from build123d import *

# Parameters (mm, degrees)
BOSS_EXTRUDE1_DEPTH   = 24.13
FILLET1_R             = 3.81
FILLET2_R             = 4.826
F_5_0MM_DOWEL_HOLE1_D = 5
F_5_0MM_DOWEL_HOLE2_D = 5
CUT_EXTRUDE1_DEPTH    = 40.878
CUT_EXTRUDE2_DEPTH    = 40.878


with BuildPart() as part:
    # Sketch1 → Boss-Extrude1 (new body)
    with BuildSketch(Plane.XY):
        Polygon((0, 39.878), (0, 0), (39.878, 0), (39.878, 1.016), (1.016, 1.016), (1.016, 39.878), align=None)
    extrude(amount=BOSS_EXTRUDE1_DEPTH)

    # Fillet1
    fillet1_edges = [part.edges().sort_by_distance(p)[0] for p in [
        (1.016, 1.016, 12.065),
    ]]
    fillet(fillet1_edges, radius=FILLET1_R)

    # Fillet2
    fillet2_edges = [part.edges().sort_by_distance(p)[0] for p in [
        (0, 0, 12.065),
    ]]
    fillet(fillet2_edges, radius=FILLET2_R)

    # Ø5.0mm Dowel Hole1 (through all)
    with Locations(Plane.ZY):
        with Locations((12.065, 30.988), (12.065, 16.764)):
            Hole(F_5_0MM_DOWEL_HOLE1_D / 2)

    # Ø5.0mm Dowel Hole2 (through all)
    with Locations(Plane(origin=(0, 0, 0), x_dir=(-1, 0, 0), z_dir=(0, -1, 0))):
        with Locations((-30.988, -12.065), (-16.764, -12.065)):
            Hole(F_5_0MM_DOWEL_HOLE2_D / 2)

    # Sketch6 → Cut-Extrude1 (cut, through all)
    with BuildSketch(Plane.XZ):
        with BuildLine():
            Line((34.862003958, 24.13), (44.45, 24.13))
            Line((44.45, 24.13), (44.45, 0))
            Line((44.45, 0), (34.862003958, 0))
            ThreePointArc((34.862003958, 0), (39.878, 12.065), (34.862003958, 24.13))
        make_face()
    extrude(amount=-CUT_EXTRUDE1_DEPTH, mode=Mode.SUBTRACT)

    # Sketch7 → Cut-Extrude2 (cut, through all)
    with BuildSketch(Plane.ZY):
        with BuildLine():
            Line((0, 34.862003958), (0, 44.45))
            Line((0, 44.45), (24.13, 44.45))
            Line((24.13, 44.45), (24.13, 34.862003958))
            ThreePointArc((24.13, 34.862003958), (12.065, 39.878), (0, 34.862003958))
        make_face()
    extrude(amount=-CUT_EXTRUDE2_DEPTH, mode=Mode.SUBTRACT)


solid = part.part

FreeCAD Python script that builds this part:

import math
import FreeCAD as App
import Part
import Sketcher
from FreeCAD import Vector
Q = App.Units.Quantity


def edges_at(feature, points):
    """Names of the edges that pass closest to the given points."""
    edges = feature.Shape.Edges
    near = lambda p: min(range(len(edges)), key=lambda i: edges[i].distToShape(Part.Vertex(*p))[0])
    return sorted({f"Edge{near(p) + 1}" for p in points})


def add_polygon(sketch, points):
    """Adds a closed chain of lines whose ends are joined by coincident constraints."""
    first, n = sketch.GeometryCount, len(points)
    for a, b in zip(points, points[1:] + points[:1]):
        sketch.addGeometry(Part.LineSegment(App.Vector(*a, 0), App.Vector(*b, 0)), False)
    for i in range(n):
        sketch.addConstraint(Sketcher.Constraint("Coincident", first + i, 2, first + (i + 1) % n, 1))

doc = App.newDocument("Part")
body = doc.addObject("PartDesign::Body", "Body")

sketch1 = doc.addObject("Sketcher::SketchObject", "Sketch")
body.addObject(sketch1)
sketch1.AttachmentSupport = (doc.XY_Plane, [""])
sketch1.MapMode = "FlatFace"
add_polygon(sketch1, [(0, 39.9), (0, 0), (39.9, 0), (39.9, 1), (1, 1), (1, 39.9)])
sketch1.addConstraint([
    Sketcher.Constraint("Vertical", 0),
    Sketcher.Constraint("Horizontal", 1),
    Sketcher.Constraint("Vertical", 2),
    Sketcher.Constraint("Horizontal", 3),
    Sketcher.Constraint("Vertical", 4),
    Sketcher.Constraint("Horizontal", 5),
    Sketcher.Constraint("Coincident", 0, 2, -1, 1),
    Sketcher.Constraint("Equal", 1, 0),
    Sketcher.Constraint("Equal", 5, 2),
    Sketcher.Constraint("DistanceX", 1, 1, 1, 2, Q("1.57 in")),
    Sketcher.Constraint("DistanceX", 3, 2, 3, 1, Q("1.53 in")),
])
pad1 = doc.addObject("PartDesign::Pad", "Pad")
body.addObject(pad1)
pad1.Profile = sketch1
pad1.Length = Q("0.95 in")
doc.recompute()

fillet = doc.addObject("PartDesign::Fillet", "Fillet")
body.addObject(fillet)
fillet.Base = (pad1, edges_at(pad1, [(1.016, 1.016, 12.065)]))
fillet.Radius = Q("0.15 in")
doc.recompute()

fillet2 = doc.addObject("PartDesign::Fillet", "Fillet001")
body.addObject(fillet2)
fillet2.Base = (fillet, edges_at(fillet, [(0, 0, 12.065)]))
fillet2.Radius = Q("0.19 in")

sketch2 = doc.addObject("Sketcher::SketchObject", "Sketch001")
body.addObject(sketch2)
sketch2.AttachmentSupport = (doc.YZ_Plane, [""])
sketch2.MapMode = "FlatFace"
sketch2.addGeometry([
    Part.Circle(Vector(31, 12.1, 0), Vector(0, 0, 1), 2.5),
    Part.Circle(Vector(16.8, 12.1, 0), Vector(0, 0, 1), 2.5),
], False)
sketch2.addConstraint([
    Sketcher.Constraint("Equal", 0, 1),
    Sketcher.Constraint("Horizontal", 0, 3, 1, 3),
    Sketcher.Constraint("Diameter", 0, 5.0),
    Sketcher.Constraint("DistanceX", -1, 1, 0, 3, Q("1.22 in")),
    Sketcher.Constraint("DistanceX", -1, 1, 1, 3, Q("0.66 in")),
    Sketcher.Constraint("DistanceY", -1, 1, 0, 3, Q("0.475 in")),
])
doc.recompute()
hole = doc.addObject("PartDesign::Hole", "Hole")
body.addObject(hole)
hole.Profile = sketch2
hole.ThreadType = "None"
hole.Diameter = 5
hole.DepthType = "ThroughAll"
hole.Reversed = True

sketch3 = doc.addObject("Sketcher::SketchObject", "Sketch002")
body.addObject(sketch3)
sketch3.AttachmentSupport = (doc.XZ_Plane, [""])
sketch3.MapMode = "FlatFace"
sketch3.addGeometry([
    Part.Circle(Vector(31, 12.1, 0), Vector(0, 0, 1), 2.5),
    Part.Circle(Vector(16.8, 12.1, 0), Vector(0, 0, 1), 2.5),
], False)
sketch3.addConstraint([
    Sketcher.Constraint("Equal", 0, 1),
    Sketcher.Constraint("Horizontal", 0, 3, 1, 3),
    Sketcher.Constraint("Diameter", 0, 5.0),
    Sketcher.Constraint("DistanceX", -1, 1, 0, 3, Q("1.22 in")),
    Sketcher.Constraint("DistanceX", -1, 1, 1, 3, Q("0.66 in")),
    Sketcher.Constraint("DistanceY", -1, 1, 0, 3, Q("0.475 in")),
])
doc.recompute()
hole2 = doc.addObject("PartDesign::Hole", "Hole001")
body.addObject(hole2)
hole2.Profile = sketch3
hole2.ThreadType = "None"
hole2.Diameter = 5
hole2.DepthType = "ThroughAll"

sketch4 = doc.addObject("Sketcher::SketchObject", "Sketch003")
body.addObject(sketch4)
sketch4.AttachmentSupport = (doc.XZ_Plane, [""])
sketch4.MapMode = "FlatFace"
sketch4.addGeometry([
    Part.LineSegment(Vector(44, 24, 0), Vector(35, 24, 0)),
    Part.ArcOfCircle(Part.Circle(Vector(23, 12, 0), Vector(0, 0, 1), 17), math.radians(-45), math.radians(45)),
    Part.LineSegment(Vector(35, 0, 0), Vector(44, 0, 0)),
    Part.LineSegment(Vector(44, 0, 0), Vector(44, 24, 0)),
], False)
sketch4.addConstraint([
    Sketcher.Constraint("Coincident", 0, 2, 1, 2),
    Sketcher.Constraint("Coincident", 1, 1, 2, 1),
    Sketcher.Constraint("Coincident", 2, 2, 3, 1),
    Sketcher.Constraint("Coincident", 3, 2, 0, 1),
    Sketcher.Constraint("Horizontal", 0),
    Sketcher.Constraint("Horizontal", 2),
    Sketcher.Constraint("Vertical", 3),
    Sketcher.Constraint("PointOnObject", 1, 1, -1),
    Sketcher.Constraint("Vertical", 0, 2, 1, 1),
    Sketcher.Constraint("Radius", 1, Q("0.67 in")),
    Sketcher.Constraint("DistanceY", 3, 1, 3, 2, Q("0.95 in")),
    Sketcher.Constraint("DistanceX", -1, 1, 1, 3, Q("0.9 in")),
    Sketcher.Constraint("DistanceX", -1, 1, 2, 2, Q("1.75 in")),
])
pocket1 = doc.addObject("PartDesign::Pocket", "Pocket")
body.addObject(pocket1)
pocket1.Profile = sketch4
pocket1.Type = "ThroughAll"

sketch5 = doc.addObject("Sketcher::SketchObject", "Sketch004")
body.addObject(sketch5)
sketch5.AttachmentSupport = (doc.YZ_Plane, [""])
sketch5.MapMode = "FlatFace"
sketch5.addGeometry([
    Part.LineSegment(Vector(44, 0, 0), Vector(35, 0, 0)),
    Part.ArcOfCircle(Part.Circle(Vector(23, 12, 0), Vector(0, 0, 1), 17), math.radians(-45), math.radians(45)),
    Part.LineSegment(Vector(35, 24, 0), Vector(44, 24, 0)),
    Part.LineSegment(Vector(44, 24, 0), Vector(44, 0, 0)),
], False)
sketch5.addConstraint([
    Sketcher.Constraint("Coincident", 0, 2, 1, 1),
    Sketcher.Constraint("Coincident", 1, 2, 2, 1),
    Sketcher.Constraint("Coincident", 2, 2, 3, 1),
    Sketcher.Constraint("Coincident", 3, 2, 0, 1),
    Sketcher.Constraint("Horizontal", 0),
    Sketcher.Constraint("Horizontal", 2),
    Sketcher.Constraint("Vertical", 3),
    Sketcher.Constraint("PointOnObject", 0, 2, -1),
    Sketcher.Constraint("Vertical", 0, 2, 1, 2),
    Sketcher.Constraint("Radius", 1, Q("0.67 in")),
    Sketcher.Constraint("DistanceY", 3, 2, 3, 1, Q("0.95 in")),
    Sketcher.Constraint("DistanceX", -1, 1, 1, 3, Q("0.9 in")),
    Sketcher.Constraint("DistanceX", -1, 1, 2, 2, Q("1.75 in")),
])
pocket2 = doc.addObject("PartDesign::Pocket", "Pocket001")
body.addObject(pocket2)
pocket2.Profile = sketch5
pocket2.Type = "ThroughAll"
pocket2.Reversed = True

doc.recompute()
